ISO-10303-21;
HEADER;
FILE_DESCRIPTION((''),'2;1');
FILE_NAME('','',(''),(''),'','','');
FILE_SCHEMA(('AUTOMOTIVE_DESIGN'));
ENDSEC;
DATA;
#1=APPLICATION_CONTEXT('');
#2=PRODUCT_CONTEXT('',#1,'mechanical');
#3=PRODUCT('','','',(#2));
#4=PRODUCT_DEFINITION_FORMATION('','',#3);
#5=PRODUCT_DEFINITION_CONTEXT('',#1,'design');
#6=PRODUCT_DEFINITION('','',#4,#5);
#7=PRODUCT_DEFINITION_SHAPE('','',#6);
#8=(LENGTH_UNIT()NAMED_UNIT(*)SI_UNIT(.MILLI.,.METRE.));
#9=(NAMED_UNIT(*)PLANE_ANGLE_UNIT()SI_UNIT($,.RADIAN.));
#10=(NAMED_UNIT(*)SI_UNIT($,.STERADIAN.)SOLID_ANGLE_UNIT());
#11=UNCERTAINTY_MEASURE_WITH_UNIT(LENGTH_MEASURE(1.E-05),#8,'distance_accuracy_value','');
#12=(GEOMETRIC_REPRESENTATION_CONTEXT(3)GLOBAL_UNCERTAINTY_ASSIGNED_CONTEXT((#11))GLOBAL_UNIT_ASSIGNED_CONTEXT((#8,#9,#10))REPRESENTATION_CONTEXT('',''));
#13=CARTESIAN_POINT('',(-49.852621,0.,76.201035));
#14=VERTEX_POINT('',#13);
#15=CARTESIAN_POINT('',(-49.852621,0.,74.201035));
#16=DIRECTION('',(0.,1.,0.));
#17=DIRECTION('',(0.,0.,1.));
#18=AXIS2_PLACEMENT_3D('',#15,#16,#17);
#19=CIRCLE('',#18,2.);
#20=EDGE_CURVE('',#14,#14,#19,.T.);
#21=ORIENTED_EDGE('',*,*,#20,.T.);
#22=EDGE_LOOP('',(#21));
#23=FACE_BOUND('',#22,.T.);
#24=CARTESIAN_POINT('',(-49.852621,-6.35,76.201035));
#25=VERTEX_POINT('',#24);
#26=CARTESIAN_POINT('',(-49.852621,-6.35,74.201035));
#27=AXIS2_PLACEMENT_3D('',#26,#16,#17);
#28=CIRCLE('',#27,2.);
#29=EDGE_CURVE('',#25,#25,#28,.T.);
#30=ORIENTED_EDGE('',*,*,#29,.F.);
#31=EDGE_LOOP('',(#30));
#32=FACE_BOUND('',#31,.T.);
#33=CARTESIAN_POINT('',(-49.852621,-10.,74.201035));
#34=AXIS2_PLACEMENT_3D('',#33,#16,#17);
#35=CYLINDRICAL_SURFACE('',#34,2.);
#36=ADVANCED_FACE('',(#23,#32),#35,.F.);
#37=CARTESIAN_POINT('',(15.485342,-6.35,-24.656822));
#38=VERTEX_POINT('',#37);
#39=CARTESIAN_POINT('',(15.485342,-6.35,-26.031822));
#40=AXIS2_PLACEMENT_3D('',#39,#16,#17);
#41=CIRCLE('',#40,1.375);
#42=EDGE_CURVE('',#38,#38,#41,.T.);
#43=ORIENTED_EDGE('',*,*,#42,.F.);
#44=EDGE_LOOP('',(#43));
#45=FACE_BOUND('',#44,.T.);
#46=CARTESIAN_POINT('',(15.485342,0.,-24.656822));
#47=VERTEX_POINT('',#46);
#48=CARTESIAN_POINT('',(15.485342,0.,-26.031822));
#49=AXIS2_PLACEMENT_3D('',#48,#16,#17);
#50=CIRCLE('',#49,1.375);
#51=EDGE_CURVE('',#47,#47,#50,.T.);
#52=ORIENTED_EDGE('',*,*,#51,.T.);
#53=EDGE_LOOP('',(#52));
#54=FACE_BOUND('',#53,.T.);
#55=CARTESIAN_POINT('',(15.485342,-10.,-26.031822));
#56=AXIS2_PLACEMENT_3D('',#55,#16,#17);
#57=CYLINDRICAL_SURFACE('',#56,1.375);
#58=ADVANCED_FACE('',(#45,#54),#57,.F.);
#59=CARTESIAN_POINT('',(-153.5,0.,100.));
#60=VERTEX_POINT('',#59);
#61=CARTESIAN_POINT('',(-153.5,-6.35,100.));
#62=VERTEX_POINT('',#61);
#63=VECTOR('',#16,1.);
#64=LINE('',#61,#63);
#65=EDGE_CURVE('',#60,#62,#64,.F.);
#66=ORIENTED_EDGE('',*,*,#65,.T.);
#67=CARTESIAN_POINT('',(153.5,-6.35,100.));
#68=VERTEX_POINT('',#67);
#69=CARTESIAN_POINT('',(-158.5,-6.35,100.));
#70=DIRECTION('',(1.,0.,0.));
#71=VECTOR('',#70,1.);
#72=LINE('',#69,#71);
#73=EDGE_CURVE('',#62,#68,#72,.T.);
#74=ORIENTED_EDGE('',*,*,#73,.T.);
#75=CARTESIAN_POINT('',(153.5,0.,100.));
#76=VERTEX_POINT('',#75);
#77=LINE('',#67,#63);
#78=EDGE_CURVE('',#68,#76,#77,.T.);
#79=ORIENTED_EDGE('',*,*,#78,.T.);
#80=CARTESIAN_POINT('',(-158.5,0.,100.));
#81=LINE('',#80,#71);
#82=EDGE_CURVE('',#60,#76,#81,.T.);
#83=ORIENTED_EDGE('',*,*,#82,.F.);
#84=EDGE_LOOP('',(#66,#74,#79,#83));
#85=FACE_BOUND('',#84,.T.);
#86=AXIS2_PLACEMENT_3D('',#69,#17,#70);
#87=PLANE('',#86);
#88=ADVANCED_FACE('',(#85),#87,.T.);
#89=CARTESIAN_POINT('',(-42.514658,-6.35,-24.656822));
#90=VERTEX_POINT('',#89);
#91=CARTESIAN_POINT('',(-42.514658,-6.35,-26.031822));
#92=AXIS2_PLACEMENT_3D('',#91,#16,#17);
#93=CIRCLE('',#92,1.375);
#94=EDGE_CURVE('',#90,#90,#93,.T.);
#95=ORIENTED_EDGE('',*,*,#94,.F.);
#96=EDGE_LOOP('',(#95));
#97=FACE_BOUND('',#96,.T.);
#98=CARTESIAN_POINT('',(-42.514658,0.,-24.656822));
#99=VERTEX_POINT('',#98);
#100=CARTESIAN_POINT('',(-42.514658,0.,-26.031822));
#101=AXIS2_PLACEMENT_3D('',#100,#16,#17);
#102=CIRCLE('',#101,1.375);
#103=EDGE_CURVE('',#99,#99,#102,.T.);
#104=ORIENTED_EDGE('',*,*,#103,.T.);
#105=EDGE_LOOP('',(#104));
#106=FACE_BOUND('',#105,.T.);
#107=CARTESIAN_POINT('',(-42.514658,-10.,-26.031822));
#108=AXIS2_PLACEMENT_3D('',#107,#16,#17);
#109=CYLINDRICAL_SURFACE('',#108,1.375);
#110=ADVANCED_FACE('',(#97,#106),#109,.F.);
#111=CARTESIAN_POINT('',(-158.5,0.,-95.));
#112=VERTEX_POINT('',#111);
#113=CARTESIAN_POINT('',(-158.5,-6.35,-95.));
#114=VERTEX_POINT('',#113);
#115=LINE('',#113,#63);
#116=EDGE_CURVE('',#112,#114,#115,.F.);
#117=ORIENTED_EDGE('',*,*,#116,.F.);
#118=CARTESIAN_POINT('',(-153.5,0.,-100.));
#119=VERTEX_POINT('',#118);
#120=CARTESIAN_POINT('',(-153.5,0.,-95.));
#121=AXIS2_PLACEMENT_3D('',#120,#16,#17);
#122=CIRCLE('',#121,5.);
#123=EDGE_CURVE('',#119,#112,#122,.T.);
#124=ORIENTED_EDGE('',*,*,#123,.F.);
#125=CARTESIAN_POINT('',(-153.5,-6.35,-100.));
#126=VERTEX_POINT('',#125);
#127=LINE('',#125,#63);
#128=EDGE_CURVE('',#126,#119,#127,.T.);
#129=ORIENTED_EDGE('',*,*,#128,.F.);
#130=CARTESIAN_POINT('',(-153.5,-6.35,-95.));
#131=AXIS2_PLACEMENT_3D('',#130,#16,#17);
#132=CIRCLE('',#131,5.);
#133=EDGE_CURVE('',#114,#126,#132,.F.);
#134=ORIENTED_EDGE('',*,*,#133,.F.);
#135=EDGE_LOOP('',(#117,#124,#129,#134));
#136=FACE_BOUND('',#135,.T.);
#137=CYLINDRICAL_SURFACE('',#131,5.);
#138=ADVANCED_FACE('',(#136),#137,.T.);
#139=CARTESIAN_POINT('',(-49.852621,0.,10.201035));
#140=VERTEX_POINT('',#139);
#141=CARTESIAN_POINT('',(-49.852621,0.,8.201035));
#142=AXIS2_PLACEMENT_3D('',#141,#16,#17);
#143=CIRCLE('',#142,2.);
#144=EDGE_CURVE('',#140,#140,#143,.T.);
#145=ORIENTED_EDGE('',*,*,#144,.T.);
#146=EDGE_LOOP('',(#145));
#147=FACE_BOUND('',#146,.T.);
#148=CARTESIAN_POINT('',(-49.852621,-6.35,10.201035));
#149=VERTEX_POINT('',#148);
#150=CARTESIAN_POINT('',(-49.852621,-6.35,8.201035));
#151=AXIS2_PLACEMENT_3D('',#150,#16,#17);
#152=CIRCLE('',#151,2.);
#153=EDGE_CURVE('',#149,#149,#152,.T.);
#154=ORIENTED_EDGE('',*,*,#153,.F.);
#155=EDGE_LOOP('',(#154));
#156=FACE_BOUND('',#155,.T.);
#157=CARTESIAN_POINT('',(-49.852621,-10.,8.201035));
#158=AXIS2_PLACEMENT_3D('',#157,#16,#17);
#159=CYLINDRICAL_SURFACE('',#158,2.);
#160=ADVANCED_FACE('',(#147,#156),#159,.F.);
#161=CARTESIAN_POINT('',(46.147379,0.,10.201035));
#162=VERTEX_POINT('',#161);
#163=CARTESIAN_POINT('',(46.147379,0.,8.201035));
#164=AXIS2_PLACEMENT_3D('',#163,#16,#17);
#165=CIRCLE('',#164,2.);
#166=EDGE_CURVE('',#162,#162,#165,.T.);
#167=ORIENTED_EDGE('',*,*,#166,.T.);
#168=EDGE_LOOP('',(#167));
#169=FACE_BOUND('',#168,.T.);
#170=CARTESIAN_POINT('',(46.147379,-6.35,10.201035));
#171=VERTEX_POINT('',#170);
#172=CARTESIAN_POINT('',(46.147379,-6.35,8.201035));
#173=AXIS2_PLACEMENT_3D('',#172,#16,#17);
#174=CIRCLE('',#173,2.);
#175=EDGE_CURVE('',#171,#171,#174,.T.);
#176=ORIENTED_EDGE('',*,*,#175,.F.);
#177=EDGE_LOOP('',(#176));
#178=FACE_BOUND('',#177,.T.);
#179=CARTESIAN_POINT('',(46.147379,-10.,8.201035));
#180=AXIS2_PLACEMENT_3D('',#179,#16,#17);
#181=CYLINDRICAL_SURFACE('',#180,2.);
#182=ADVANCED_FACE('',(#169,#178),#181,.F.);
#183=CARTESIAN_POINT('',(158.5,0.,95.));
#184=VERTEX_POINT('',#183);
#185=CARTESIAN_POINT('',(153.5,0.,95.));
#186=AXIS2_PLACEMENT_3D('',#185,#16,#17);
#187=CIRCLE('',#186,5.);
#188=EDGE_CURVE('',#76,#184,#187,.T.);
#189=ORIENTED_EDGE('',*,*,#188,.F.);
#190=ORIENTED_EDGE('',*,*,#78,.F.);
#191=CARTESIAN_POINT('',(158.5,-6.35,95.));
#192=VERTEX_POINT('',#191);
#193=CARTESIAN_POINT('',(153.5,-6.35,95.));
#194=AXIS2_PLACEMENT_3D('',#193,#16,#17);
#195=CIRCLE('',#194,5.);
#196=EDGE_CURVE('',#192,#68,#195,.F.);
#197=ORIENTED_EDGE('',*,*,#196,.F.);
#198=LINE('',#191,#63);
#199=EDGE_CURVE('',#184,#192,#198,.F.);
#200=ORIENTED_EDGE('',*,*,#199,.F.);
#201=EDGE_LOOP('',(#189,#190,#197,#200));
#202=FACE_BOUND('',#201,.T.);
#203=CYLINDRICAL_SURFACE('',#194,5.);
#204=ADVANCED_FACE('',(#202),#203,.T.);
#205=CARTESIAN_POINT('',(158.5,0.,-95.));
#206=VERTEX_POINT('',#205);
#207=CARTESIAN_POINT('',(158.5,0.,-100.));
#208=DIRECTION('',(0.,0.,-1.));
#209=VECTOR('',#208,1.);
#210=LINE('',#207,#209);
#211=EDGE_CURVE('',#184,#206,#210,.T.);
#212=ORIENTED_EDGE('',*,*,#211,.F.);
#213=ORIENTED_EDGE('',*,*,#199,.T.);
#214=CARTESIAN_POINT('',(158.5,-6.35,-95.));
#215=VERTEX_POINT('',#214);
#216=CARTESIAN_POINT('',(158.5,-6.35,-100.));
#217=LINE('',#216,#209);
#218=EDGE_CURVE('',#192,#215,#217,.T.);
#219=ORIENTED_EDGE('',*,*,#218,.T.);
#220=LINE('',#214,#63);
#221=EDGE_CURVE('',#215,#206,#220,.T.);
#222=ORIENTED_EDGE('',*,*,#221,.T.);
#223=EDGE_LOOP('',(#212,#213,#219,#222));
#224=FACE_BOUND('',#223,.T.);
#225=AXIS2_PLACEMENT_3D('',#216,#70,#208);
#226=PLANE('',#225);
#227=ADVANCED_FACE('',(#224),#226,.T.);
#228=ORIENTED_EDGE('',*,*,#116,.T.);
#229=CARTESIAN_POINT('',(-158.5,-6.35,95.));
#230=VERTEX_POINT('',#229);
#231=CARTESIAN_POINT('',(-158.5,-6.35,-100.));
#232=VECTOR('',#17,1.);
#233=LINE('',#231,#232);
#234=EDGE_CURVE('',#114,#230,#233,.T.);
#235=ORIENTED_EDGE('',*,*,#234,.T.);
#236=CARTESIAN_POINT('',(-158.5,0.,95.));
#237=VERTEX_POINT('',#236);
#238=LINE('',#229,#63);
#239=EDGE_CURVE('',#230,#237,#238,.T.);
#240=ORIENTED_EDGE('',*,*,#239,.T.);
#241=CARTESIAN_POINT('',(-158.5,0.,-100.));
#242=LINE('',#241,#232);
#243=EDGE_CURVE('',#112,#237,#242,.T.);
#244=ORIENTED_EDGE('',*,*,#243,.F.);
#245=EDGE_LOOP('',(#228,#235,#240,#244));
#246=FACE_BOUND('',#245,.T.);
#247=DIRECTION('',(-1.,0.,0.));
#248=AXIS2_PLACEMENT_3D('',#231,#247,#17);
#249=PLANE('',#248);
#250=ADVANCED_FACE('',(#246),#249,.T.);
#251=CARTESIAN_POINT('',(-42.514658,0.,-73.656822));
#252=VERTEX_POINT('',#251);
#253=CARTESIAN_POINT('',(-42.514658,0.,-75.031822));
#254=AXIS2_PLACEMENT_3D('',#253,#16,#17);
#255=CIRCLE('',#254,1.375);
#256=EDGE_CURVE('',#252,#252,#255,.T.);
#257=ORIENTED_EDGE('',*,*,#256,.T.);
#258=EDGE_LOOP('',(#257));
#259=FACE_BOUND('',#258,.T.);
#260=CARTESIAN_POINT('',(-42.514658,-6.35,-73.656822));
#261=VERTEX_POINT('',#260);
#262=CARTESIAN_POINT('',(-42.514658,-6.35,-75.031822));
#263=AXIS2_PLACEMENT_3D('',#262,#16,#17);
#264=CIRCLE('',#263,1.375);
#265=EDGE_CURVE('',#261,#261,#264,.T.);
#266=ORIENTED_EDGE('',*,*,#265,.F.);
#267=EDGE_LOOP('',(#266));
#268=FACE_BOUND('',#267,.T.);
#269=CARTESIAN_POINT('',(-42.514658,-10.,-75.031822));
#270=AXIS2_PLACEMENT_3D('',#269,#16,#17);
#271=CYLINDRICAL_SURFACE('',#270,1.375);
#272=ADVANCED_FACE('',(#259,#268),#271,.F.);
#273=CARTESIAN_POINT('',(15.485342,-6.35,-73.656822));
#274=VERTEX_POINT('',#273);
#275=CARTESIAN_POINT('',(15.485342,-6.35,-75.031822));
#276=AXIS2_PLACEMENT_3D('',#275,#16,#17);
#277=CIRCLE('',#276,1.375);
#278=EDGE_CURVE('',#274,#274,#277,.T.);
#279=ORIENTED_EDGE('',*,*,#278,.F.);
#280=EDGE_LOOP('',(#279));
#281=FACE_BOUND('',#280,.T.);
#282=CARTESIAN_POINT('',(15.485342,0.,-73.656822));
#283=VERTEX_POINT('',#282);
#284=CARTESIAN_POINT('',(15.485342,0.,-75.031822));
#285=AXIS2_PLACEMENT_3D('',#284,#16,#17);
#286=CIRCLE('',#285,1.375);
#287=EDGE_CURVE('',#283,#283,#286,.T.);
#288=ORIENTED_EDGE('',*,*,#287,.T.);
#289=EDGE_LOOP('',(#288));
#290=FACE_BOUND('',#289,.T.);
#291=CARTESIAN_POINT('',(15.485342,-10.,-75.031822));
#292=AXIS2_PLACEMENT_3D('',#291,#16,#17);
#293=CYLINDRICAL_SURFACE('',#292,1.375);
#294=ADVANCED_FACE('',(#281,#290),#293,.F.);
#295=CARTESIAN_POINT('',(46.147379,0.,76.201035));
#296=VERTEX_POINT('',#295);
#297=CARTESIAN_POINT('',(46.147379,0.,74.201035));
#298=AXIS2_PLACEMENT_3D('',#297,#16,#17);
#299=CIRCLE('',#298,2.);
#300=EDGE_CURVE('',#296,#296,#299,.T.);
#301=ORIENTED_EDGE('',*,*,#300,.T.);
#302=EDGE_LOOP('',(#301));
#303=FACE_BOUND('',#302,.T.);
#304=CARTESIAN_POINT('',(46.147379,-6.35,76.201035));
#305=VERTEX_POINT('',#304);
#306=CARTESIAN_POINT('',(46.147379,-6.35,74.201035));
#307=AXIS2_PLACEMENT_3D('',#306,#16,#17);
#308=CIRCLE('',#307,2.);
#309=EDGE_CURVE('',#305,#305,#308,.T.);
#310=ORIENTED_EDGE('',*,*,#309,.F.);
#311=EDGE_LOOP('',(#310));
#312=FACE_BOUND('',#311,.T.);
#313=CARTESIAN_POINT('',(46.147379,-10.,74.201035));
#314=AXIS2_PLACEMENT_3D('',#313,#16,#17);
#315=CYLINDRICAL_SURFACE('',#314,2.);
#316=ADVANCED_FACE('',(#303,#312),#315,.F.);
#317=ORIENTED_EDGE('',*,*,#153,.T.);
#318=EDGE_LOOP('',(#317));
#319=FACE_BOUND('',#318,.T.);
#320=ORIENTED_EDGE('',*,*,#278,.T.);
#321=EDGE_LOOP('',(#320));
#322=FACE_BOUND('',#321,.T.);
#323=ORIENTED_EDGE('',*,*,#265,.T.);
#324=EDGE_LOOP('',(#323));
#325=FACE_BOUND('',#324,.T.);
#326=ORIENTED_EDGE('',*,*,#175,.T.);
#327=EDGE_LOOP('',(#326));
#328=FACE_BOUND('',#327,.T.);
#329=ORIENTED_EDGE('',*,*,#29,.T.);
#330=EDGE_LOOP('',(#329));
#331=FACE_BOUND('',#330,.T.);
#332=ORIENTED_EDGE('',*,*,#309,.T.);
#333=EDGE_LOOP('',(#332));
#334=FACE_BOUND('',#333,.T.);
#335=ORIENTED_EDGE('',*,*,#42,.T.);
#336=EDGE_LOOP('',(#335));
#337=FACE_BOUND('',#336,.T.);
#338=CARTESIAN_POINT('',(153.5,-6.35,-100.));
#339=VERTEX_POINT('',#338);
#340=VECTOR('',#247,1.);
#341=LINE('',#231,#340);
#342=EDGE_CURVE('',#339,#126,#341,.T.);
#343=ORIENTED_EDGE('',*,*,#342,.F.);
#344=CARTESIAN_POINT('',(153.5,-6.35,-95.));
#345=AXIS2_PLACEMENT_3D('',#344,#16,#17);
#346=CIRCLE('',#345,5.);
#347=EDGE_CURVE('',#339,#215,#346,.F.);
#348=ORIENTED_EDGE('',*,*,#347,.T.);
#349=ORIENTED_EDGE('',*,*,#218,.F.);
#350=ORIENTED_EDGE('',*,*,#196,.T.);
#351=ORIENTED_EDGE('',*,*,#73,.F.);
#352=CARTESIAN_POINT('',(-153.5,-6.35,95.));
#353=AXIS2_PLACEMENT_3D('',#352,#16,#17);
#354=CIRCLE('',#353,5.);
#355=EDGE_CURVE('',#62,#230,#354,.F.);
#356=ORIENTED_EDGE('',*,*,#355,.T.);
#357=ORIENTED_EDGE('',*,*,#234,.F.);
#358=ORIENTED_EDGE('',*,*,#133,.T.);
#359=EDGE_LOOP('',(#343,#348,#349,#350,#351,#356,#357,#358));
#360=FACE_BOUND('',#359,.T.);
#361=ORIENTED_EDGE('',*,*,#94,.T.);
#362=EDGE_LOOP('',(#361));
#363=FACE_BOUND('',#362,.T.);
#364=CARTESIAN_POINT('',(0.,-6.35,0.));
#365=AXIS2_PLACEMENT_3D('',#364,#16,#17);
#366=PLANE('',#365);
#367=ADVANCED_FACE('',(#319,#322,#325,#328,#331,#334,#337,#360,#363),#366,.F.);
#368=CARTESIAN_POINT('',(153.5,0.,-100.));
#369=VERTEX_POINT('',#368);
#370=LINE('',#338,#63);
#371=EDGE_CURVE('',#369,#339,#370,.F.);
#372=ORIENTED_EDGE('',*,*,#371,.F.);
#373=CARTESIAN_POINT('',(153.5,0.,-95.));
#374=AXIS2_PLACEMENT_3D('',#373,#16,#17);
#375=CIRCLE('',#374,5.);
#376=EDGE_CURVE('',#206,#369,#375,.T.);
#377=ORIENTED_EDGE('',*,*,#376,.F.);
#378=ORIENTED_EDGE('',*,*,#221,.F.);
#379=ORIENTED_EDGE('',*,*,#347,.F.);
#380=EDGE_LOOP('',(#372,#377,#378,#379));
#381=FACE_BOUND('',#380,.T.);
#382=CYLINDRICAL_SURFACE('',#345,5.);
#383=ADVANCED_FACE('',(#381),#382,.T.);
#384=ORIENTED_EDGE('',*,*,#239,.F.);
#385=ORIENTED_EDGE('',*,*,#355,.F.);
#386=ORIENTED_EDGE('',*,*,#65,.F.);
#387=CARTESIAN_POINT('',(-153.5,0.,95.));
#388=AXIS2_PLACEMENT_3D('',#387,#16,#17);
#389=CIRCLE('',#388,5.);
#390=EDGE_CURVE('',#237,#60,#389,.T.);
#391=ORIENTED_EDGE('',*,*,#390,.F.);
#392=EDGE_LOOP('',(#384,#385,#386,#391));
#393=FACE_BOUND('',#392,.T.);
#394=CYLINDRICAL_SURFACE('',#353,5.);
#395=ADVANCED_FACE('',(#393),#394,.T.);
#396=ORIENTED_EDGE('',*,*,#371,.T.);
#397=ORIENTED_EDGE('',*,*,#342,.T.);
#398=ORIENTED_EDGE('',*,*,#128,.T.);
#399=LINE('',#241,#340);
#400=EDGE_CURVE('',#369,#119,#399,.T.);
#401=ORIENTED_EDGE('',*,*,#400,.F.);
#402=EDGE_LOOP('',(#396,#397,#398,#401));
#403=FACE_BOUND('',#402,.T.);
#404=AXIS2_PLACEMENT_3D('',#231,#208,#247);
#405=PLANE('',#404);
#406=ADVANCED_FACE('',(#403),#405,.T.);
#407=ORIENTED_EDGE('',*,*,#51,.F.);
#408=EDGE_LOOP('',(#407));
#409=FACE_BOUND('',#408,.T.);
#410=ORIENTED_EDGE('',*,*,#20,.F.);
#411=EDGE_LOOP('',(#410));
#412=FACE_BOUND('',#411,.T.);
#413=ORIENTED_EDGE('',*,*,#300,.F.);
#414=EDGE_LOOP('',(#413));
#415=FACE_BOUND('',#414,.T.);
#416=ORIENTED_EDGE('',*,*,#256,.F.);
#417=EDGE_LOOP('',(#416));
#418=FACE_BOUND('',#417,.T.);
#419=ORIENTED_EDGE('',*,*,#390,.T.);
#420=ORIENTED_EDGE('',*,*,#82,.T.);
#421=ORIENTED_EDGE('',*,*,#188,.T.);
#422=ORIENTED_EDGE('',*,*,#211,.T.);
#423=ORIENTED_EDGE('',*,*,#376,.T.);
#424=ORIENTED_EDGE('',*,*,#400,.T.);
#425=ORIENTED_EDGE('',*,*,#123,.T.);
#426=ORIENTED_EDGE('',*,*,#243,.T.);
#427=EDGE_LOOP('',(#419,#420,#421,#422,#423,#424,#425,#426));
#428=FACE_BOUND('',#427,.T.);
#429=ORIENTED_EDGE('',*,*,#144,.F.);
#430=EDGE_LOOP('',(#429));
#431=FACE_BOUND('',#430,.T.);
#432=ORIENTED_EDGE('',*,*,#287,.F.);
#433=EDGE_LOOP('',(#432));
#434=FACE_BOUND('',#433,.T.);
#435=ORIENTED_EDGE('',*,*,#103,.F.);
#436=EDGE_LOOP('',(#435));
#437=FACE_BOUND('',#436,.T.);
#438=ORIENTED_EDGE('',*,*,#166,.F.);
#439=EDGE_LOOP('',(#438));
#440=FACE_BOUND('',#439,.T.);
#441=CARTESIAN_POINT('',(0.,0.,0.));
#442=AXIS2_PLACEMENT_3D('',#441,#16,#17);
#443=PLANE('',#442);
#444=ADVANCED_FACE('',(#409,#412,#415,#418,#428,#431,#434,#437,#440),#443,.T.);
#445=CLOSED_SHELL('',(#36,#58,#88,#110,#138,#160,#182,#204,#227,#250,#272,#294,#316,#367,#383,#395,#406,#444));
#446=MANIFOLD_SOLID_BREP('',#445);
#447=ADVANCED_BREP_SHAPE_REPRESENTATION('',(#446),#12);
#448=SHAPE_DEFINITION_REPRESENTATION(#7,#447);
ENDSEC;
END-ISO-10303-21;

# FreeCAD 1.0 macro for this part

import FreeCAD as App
import Part
import Sketcher
Q = App.Units.Quantity


def edges_at(feature, points):
    """Names of the edges that pass closest to the given points."""
    edges = feature.Shape.Edges
    near = lambda p: min(range(len(edges)), key=lambda i: edges[i].distToShape(Part.Vertex(*p))[0])
    return sorted({f"Edge{near(p) + 1}" for p in points})


def add_polygon(sketch, points):
    """Adds a closed chain of lines whose ends are joined by coincident constraints."""
    first, n = sketch.GeometryCount, len(points)
    for a, b in zip(points, points[1:] + points[:1]):
        sketch.addGeometry(Part.LineSegment(App.Vector(*a, 0), App.Vector(*b, 0)), False)
    for i in range(n):
        sketch.addConstraint(Sketcher.Constraint("Coincident", first + i, 2, first + (i + 1) % n, 1))

doc = App.newDocument("Part")
params = doc.addObject("Spreadsheet::Sheet", "Params")
for row, (alias, value) in enumerate([
    ("sketch1_width", "317 mm"),
    ("sketch1_height", "200 mm"),
    ("pad1_length", "6.35 mm"),
    ("fillet_radius", "5 mm"),
    ("sketch2_diameter", "4 mm"),
    ("sketch2_diameter2", "2.75 mm"),
    ("pocket1_length", "10 mm"),
], start=1):
    params.set(f"A{row}", alias)
    params.set(f"B{row}", "=" + value)
    params.setAlias(f"B{row}", alias)

body = doc.addObject("PartDesign::Body", "Body")

sketch1 = doc.addObject("Sketcher::SketchObject", "Sketch")
body.addObject(sketch1)
sketch1.AttachmentSupport = (doc.XZ_Plane, [""])
sketch1.MapMode = "FlatFace"
add_polygon(sketch1, [(-158, -100), (-158, 100), (158, 100), (158, -100)])
sketch1.addConstraint([
    Sketcher.Constraint("Vertical", 0),
    Sketcher.Constraint("Horizontal", 1),
    Sketcher.Constraint("Vertical", 2),
    Sketcher.Constraint("Horizontal", 3),
    Sketcher.Constraint("Symmetric", 0, 2, 2, 2, -1, 1),
    Sketcher.Constraint("DistanceX", 1, 1, 1, 2, Q("317 mm")),
    Sketcher.Constraint("DistanceY", 0, 1, 0, 2, Q("200 mm")),
])
sketch1.setExpression("Constraints[9]", "Params.sketch1_width")
sketch1.setExpression("Constraints[10]", "Params.sketch1_height")
pad1 = doc.addObject("PartDesign::Pad", "Pad")
body.addObject(pad1)
pad1.Profile = sketch1
pad1.setExpression("Length", "Params.pad1_length")
doc.recompute()

fillet = doc.addObject("PartDesign::Fillet", "Fillet")
body.addObject(fillet)
fillet.Base = (pad1, edges_at(pad1, [
    (-158.5, -3.175, -100),
    (158.5, -3.175, -100),
    (158.5, -3.175, 100),
    (-158.5, -3.175, 100),
]))
fillet.setExpression("Radius", "Params.fillet_radius")

sketch2 = doc.addObject("Sketcher::SketchObject", "Sketch001")
body.addObject(sketch2)
sketch2.AttachmentSupport = (doc.XZ_Plane, [""])
sketch2.MapMode = "FlatFace"
sketch2.addGeometry([
    Part.Circle(App.Vector(46.1, 8.2, 0), App.Vector(0, 0, 1), 2),
    Part.Circle(App.Vector(46.1, 74.2, 0), App.Vector(0, 0, 1), 2),
    Part.Circle(App.Vector(-49.9, 8.2, 0), App.Vector(0, 0, 1), 2),
    Part.Circle(App.Vector(-49.9, 74.2, 0), App.Vector(0, 0, 1), 2),
    Part.Circle(App.Vector(15.5, -75, 0), App.Vector(0, 0, 1), 1.4),
    Part.Circle(App.Vector(15.5, -26, 0), App.Vector(0, 0, 1), 1.4),
    Part.Circle(App.Vector(-42.5, -26, 0), App.Vector(0, 0, 1), 1.4),
    Part.Circle(App.Vector(-42.5, -75, 0), App.Vector(0, 0, 1), 1.4),
], False)
sketch2.addConstraint([
    Sketcher.Constraint("Equal", 0, 1),
    Sketcher.Constraint("Equal", 1, 2),
    Sketcher.Constraint("Equal", 2, 3),
    Sketcher.Constraint("Equal", 4, 5),
    Sketcher.Constraint("Equal", 5, 6),
    Sketcher.Constraint("Equal", 6, 7),
    Sketcher.Constraint("Horizontal", 0, 3, 2, 3),
    Sketcher.Constraint("Horizontal", 1, 3, 3, 3),
    Sketcher.Constraint("Horizontal", 5, 3, 6, 3),
    Sketcher.Constraint("Horizontal", 4, 3, 7, 3),
    Sketcher.Constraint("Vertical", 0, 3, 1, 3),
    Sketcher.Constraint("Vertical", 2, 3, 3, 3),
    Sketcher.Constraint("Vertical", 4, 3, 5, 3),
    Sketcher.Constraint("Vertical", 6, 3, 7, 3),
    Sketcher.Constraint("Diameter", 0, Q("4 mm")),
    Sketcher.Constraint("Diameter", 4, Q("2.75 mm")),
    Sketcher.Constraint("DistanceY", 0, 3, 1, 3, Q("66 mm")),
    Sketcher.Constraint("DistanceX", 2, 3, 0, 3, Q("96 mm")),
    Sketcher.Constraint("DistanceY", 4, 3, 5, 3, Q("49 mm")),
    Sketcher.Constraint("DistanceX", 6, 3, 5, 3, Q("58 mm")),
    Sketcher.Constraint("DistanceX", -1, 1, 0, 3, Q("46.147379 mm")),
    Sketcher.Constraint("DistanceX", -1, 1, 4, 3, Q("15.485342 mm")),
    Sketcher.Constraint("DistanceY", -1, 1, 0, 3, Q("8.201035 mm")),
    Sketcher.Constraint("DistanceY", 4, 3, -1, 1, Q("75.031822 mm")),
])
sketch2.setExpression("Constraints[14]", "Params.sketch2_diameter")
sketch2.setExpression("Constraints[15]", "Params.sketch2_diameter2")
pocket1 = doc.addObject("PartDesign::Pocket", "Pocket")
body.addObject(pocket1)
pocket1.Profile = sketch2
pocket1.setExpression("Length", "Params.pocket1_length")
pocket1.Reversed = True

doc.recompute()
